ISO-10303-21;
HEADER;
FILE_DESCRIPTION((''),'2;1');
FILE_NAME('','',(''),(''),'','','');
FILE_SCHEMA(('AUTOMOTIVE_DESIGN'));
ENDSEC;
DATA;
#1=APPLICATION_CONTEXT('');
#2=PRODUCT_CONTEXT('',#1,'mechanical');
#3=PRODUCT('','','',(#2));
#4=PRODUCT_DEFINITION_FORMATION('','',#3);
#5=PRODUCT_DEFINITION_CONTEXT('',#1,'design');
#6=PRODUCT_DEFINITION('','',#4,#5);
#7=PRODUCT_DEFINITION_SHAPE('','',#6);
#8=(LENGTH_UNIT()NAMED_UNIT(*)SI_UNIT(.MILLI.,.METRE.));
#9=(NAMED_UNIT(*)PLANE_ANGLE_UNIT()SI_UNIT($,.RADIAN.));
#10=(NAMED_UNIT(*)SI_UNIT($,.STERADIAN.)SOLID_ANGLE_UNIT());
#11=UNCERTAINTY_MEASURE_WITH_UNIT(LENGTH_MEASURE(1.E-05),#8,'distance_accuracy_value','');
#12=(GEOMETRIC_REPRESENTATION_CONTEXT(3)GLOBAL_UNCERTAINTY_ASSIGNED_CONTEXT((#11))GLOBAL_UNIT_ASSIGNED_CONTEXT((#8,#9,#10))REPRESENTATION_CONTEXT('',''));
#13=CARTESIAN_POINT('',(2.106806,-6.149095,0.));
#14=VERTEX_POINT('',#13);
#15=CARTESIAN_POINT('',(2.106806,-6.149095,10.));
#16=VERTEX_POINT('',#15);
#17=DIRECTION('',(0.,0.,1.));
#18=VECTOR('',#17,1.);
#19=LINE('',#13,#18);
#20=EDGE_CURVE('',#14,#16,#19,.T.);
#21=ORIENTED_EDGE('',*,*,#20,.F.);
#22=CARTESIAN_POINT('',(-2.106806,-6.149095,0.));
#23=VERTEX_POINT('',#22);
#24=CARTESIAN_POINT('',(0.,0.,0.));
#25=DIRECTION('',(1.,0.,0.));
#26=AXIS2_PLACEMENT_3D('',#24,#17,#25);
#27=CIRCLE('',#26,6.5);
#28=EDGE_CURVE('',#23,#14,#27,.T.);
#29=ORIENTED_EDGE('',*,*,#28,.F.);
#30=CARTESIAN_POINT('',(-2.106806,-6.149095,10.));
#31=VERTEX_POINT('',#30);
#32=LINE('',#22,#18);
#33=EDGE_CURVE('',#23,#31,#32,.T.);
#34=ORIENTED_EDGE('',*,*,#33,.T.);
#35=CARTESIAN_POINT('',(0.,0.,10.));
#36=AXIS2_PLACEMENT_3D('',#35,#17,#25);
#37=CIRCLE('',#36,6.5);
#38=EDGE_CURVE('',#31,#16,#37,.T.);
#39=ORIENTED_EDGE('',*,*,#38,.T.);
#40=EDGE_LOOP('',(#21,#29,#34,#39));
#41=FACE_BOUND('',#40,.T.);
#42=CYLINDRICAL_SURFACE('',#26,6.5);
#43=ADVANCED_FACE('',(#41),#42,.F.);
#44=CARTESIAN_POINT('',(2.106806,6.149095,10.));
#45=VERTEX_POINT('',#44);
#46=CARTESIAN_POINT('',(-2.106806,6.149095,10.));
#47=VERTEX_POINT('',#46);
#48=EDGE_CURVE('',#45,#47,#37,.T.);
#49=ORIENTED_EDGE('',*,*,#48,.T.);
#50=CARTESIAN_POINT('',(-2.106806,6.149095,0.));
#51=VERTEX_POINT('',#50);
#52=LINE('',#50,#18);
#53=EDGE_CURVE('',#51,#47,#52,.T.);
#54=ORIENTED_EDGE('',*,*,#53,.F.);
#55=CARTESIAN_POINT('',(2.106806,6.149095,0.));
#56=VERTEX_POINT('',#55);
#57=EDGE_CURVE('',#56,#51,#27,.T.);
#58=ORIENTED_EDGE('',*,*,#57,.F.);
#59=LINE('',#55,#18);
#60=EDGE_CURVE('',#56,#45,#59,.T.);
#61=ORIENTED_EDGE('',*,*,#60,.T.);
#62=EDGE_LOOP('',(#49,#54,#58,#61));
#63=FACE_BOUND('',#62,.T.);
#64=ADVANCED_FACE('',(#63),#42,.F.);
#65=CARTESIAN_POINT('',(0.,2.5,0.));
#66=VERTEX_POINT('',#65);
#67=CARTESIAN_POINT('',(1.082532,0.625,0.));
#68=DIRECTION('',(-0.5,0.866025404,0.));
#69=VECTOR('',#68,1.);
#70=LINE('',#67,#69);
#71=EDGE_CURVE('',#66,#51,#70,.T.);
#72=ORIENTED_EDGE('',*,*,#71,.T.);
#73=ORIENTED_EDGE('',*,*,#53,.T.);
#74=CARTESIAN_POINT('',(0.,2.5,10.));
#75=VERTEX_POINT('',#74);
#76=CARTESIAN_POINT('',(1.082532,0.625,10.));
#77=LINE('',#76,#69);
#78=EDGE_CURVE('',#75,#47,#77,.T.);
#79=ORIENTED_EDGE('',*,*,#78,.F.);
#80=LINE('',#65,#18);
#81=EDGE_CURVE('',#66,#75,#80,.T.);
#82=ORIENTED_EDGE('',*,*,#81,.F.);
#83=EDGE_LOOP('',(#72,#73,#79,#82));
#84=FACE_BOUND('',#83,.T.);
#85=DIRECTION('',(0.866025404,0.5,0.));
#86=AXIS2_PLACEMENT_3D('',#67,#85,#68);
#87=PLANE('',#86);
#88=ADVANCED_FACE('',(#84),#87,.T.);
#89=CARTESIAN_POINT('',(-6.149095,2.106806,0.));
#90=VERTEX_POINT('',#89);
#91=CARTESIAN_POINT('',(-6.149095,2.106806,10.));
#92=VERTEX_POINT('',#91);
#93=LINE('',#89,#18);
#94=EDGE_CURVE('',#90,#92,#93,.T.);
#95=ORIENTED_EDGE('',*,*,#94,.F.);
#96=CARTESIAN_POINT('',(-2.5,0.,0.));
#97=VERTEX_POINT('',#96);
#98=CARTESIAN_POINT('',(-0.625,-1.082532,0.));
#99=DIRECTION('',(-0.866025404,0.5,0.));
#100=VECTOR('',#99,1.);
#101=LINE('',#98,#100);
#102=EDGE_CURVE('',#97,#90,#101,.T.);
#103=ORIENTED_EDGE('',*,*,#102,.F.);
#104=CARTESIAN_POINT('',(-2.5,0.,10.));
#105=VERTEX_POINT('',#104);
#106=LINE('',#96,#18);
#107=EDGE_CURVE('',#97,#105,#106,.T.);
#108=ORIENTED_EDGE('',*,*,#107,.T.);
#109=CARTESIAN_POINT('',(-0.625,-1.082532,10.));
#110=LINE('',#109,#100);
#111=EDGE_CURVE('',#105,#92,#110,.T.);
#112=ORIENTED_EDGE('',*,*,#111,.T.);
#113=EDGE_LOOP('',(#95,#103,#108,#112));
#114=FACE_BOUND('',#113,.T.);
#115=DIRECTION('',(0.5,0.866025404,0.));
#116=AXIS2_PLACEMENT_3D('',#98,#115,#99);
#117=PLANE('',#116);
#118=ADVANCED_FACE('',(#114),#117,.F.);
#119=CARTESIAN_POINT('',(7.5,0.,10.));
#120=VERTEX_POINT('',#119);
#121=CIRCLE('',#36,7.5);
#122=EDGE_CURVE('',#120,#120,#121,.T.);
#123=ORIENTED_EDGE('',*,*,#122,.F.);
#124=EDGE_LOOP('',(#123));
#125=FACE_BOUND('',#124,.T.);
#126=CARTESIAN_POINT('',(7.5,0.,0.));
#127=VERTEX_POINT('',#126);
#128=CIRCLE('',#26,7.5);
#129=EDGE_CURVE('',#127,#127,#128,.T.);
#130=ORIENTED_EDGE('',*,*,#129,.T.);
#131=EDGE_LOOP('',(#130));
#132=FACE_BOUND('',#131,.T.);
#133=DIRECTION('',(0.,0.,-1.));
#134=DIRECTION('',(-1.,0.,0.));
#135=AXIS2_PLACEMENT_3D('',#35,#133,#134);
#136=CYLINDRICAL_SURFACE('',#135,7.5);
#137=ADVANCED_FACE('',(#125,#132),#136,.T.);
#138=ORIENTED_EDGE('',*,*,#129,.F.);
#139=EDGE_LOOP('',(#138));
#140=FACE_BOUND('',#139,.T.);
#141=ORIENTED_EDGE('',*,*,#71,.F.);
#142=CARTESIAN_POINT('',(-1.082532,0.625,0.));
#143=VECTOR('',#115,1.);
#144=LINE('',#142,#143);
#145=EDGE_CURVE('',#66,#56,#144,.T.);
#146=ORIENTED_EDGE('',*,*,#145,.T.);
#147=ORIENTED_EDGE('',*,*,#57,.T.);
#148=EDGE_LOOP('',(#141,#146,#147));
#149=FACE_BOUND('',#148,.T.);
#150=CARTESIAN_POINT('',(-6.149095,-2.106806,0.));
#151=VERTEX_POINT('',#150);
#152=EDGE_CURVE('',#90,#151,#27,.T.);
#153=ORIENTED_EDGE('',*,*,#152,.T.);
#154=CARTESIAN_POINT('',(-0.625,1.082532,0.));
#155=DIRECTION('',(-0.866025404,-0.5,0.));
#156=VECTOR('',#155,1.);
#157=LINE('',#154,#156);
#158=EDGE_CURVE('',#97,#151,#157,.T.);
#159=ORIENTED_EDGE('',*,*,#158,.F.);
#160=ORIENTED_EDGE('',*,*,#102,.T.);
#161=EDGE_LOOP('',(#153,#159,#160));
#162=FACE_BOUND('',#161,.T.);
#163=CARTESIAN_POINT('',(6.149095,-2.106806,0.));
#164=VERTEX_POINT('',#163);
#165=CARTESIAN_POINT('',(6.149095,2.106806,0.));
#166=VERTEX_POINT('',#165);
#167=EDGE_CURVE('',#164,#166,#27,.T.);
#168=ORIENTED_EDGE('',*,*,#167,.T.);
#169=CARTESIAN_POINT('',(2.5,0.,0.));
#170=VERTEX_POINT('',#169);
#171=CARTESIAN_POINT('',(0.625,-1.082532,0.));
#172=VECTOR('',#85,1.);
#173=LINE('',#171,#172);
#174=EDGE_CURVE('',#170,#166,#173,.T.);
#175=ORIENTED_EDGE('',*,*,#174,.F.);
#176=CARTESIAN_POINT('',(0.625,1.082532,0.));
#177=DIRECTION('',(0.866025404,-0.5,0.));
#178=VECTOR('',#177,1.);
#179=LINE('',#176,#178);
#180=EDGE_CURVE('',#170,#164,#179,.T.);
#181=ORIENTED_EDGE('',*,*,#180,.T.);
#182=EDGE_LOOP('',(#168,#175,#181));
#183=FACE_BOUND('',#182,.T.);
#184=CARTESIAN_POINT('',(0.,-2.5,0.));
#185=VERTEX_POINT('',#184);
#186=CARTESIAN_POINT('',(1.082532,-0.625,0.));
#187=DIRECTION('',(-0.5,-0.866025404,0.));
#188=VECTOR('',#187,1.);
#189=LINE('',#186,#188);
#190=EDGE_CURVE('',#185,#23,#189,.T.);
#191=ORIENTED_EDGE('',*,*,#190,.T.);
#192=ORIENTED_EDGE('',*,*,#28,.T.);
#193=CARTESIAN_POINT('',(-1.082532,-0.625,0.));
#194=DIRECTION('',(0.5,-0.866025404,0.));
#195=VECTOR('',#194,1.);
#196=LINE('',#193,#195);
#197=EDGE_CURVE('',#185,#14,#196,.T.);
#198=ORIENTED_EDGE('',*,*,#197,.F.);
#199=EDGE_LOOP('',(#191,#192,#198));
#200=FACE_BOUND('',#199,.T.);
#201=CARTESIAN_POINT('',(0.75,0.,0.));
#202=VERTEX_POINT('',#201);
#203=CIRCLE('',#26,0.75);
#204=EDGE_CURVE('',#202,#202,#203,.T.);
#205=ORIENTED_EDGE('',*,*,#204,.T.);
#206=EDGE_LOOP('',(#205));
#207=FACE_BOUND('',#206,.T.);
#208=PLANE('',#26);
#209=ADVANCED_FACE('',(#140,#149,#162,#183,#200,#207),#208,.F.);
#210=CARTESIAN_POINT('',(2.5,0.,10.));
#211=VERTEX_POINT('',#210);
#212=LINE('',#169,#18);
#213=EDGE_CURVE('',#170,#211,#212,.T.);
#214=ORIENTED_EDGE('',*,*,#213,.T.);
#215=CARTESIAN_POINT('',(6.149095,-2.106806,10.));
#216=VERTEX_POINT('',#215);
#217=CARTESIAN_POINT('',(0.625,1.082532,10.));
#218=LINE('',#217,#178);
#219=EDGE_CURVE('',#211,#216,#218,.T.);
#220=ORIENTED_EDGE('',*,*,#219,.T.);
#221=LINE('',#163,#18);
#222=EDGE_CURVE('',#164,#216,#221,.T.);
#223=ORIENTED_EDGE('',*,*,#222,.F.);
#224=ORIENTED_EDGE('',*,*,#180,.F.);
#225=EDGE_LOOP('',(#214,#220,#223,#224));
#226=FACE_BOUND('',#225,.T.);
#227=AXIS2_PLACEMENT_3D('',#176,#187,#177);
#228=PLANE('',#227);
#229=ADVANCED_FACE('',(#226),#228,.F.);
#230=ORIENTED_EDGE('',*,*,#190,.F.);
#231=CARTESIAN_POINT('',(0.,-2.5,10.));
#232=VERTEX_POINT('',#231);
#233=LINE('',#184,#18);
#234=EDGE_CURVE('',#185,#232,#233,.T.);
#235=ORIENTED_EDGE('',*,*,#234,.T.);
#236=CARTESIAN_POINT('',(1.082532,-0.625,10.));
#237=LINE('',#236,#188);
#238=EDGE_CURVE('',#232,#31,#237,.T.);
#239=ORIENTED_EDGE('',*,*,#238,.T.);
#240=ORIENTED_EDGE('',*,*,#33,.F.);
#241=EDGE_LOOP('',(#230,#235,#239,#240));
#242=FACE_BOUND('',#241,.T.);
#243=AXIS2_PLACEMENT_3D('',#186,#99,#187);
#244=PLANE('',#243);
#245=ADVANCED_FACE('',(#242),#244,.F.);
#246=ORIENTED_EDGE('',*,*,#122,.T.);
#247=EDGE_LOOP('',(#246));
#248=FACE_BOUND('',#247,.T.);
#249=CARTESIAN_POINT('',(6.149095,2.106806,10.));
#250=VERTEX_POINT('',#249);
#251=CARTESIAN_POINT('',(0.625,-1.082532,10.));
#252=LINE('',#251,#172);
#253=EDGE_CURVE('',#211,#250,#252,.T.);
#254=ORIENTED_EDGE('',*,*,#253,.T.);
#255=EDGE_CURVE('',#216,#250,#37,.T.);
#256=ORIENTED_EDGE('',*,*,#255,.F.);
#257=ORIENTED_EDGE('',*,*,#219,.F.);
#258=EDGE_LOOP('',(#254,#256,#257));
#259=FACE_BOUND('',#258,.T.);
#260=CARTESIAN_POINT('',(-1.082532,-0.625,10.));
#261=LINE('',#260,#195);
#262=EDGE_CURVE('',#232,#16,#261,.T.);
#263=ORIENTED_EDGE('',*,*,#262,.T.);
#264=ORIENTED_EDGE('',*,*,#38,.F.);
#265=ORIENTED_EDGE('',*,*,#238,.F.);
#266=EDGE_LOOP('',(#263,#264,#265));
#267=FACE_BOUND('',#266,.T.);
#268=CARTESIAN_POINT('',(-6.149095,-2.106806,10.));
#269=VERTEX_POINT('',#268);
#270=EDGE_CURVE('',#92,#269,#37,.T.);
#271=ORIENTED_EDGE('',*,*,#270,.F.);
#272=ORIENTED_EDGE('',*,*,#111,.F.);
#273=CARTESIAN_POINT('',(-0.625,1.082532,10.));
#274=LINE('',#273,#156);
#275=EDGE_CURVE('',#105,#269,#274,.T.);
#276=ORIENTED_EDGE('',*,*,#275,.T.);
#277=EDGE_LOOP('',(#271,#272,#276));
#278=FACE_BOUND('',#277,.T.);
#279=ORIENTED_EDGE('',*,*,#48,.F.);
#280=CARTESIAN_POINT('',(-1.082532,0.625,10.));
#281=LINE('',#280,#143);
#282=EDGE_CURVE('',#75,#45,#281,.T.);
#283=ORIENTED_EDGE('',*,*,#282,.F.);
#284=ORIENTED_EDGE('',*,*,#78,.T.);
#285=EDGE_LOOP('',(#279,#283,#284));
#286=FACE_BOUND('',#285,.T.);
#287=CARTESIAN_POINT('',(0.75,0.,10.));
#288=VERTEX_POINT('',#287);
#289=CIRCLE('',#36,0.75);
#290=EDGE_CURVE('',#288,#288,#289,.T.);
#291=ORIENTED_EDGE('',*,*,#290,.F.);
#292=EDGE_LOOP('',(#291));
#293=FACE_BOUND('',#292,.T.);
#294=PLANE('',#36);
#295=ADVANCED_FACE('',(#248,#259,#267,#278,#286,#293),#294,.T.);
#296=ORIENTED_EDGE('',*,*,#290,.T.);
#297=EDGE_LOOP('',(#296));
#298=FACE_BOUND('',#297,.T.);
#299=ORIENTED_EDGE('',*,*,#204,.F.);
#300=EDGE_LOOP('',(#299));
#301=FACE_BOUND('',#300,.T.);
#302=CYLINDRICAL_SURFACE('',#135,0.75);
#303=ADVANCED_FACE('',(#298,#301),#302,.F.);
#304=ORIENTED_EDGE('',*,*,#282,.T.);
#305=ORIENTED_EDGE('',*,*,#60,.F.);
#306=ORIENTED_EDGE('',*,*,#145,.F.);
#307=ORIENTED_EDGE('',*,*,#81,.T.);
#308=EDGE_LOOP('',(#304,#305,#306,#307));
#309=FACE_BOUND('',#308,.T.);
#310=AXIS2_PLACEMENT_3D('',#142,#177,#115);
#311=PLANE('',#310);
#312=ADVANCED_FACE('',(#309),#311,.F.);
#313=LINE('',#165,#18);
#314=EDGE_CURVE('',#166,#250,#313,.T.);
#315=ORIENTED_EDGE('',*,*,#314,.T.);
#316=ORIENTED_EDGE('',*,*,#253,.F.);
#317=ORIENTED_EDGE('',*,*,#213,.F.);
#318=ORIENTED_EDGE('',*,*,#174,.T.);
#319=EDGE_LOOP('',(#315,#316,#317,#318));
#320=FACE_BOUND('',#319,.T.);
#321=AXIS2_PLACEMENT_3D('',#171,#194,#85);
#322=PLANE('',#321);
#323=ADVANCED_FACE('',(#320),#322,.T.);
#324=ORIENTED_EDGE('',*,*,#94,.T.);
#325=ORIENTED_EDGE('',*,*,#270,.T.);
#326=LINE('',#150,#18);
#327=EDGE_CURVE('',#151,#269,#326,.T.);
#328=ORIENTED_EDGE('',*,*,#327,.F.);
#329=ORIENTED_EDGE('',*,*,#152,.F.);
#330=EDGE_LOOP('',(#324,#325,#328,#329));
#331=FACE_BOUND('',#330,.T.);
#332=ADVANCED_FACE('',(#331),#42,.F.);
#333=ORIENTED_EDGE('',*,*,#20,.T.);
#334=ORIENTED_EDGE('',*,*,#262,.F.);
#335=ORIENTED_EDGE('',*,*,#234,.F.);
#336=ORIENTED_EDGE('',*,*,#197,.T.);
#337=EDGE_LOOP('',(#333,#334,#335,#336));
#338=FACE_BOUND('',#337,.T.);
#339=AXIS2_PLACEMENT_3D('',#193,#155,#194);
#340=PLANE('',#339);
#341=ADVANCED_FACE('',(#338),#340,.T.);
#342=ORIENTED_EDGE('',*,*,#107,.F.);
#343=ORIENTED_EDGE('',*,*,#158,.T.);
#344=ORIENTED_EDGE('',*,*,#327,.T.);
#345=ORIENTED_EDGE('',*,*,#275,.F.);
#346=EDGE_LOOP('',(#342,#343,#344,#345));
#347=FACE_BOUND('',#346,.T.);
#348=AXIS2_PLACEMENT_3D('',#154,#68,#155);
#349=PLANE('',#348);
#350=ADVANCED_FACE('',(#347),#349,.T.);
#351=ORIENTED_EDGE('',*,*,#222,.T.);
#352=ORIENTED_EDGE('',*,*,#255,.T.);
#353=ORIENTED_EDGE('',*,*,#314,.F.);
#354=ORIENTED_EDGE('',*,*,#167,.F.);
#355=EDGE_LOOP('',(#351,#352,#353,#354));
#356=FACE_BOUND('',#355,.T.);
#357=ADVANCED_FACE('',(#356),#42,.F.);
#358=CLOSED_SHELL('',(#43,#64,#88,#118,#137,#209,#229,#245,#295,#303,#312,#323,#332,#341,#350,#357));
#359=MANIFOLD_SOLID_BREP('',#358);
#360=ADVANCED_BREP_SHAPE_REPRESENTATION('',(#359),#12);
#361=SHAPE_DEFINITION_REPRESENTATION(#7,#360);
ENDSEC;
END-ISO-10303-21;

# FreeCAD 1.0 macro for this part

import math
import FreeCAD as App
import Part
import Sketcher
Q = App.Units.Quantity

doc = App.newDocument("Part")
body = doc.addObject("PartDesign::Body", "Body")

sketch1 = body.newObject("Sketcher::SketchObject", "Sketch")
sketch1.AttachmentSupport = (doc.getObject("XY_Plane"), [""])
sketch1.MapMode = "FlatFace"
sketch1.addGeometry(Part.Circle(App.Vector(0, 0, 0), App.Vector(0, 0, 1), 7.5), False)
sketch1.addGeometry(Part.Circle(App.Vector(0, 0, 0), App.Vector(0, 0, 1), 0.8), False)
sketch1.addConstraint(Sketcher.Constraint("Coincident", 0, 3, -1, 1))
sketch1.addConstraint(Sketcher.Constraint("Coincident", 1, 3, -1, 1))
sketch1.addConstraint(Sketcher.Constraint("Diameter", 0, 15.0))
sketch1.addConstraint(Sketcher.Constraint("Diameter", 1, 1.5))
pad1 = body.newObject("PartDesign::Pad", "Pad")
pad1.Profile = sketch1
pad1.Length = 10

sketch2 = body.newObject("Sketcher::SketchObject", "Sketch001")
sketch2.AttachmentSupport = (doc.getObject("XY_Plane"), [""])
sketch2.MapMode = "FlatFace"
sketch2.AttachmentOffset = App.Placement(App.Vector(0, 0, 10), App.Rotation())
sketch2.addGeometry(Part.LineSegment(App.Vector(2.1, -6.1, 0), App.Vector(0, -2.5, 0)), False)
sketch2.addGeometry(Part.LineSegment(App.Vector(0, -2.5, 0), App.Vector(-2.1, -6.1, 0)), False)
sketch2.addGeometry(Part.ArcOfCircle(Part.Circle(App.Vector(0, 0, 0), App.Vector(0, 0, 1), 6.5), math.radians(-109), math.radians(-71)), False)
sketch2.addGeometry(Part.LineSegment(App.Vector(-6.1, -2.1, 0), App.Vector(-2.5, 0, 0)), False)
sketch2.addGeometry(Part.LineSegment(App.Vector(-2.5, 0, 0), App.Vector(-6.1, 2.1, 0)), False)
sketch2.addGeometry(Part.ArcOfCircle(Part.Circle(App.Vector(0, 0, 0), App.Vector(0, 0, 1), 6.5), math.radians(161), math.radians(199)), False)
sketch2.addGeometry(Part.LineSegment(App.Vector(6.1, 2.1, 0), App.Vector(2.5, 0, 0)), False)
sketch2.addGeometry(Part.LineSegment(App.Vector(2.5, 0, 0), App.Vector(6.1, -2.1, 0)), False)
sketch2.addGeometry(Part.ArcOfCircle(Part.Circle(App.Vector(0, 0, 0), App.Vector(0, 0, 1), 6.5), math.radians(-19), math.radians(19)), False)
sketch2.addGeometry(Part.LineSegment(App.Vector(-2.1, 6.1, 0), App.Vector(0, 2.5, 0)), False)
sketch2.addGeometry(Part.LineSegment(App.Vector(0, 2.5, 0), App.Vector(2.1, 6.1, 0)), False)
sketch2.addGeometry(Part.ArcOfCircle(Part.Circle(App.Vector(0, 0, 0), App.Vector(0, 0, 1), 6.5), math.radians(71), math.radians(109)), False)
sketch2.addConstraint(Sketcher.Constraint("Coincident", 0, 2, 1, 1))
sketch2.addConstraint(Sketcher.Constraint("Coincident", 1, 2, 2, 1))
sketch2.addConstraint(Sketcher.Constraint("Coincident", 2, 2, 0, 1))
sketch2.addConstraint(Sketcher.Constraint("Coincident", 3, 2, 4, 1))
sketch2.addConstraint(Sketcher.Constraint("Coincident", 4, 2, 5, 1))
sketch2.addConstraint(Sketcher.Constraint("Coincident", 5, 2, 3, 1))
sketch2.addConstraint(Sketcher.Constraint("Coincident", 6, 2, 7, 1))
sketch2.addConstraint(Sketcher.Constraint("Coincident", 7, 2, 8, 1))
sketch2.addConstraint(Sketcher.Constraint("Coincident", 8, 2, 6, 1))
sketch2.addConstraint(Sketcher.Constraint("Coincident", 9, 2, 10, 1))
sketch2.addConstraint(Sketcher.Constraint("Coincident", 10, 2, 11, 1))
sketch2.addConstraint(Sketcher.Constraint("Coincident", 11, 2, 9, 1))
sketch2.addConstraint(Sketcher.Constraint("Coincident", 2, 3, -1, 1))
sketch2.addConstraint(Sketcher.Constraint("Coincident", 5, 3, -1, 1))
sketch2.addConstraint(Sketcher.Constraint("Coincident", 8, 3, -1, 1))
sketch2.addConstraint(Sketcher.Constraint("Coincident", 11, 3, -1, 1))
sketch2.addConstraint(Sketcher.Constraint("Equal", 2, 5))
sketch2.addConstraint(Sketcher.Constraint("Equal", 5, 8))
sketch2.addConstraint(Sketcher.Constraint("Equal", 8, 11))
sketch2.addConstraint(Sketcher.Constraint("Symmetric", 3, 2, 6, 2, -1, 1))
sketch2.addConstraint(Sketcher.Constraint("Symmetric", 0, 2, 9, 2, -1, 1))
sketch2.addConstraint(Sketcher.Constraint("PointOnObject", 0, 2, -2))
sketch2.addConstraint(Sketcher.Constraint("PointOnObject", 3, 2, -1))
sketch2.addConstraint(Sketcher.Constraint("Perpendicular", 0, 3))
sketch2.addConstraint(Sketcher.Constraint("Perpendicular", 1, 4))
sketch2.addConstraint(Sketcher.Constraint("Parallel", 3, 6))
sketch2.addConstraint(Sketcher.Constraint("Parallel", 4, 7))
sketch2.addConstraint(Sketcher.Constraint("Perpendicular", 6, 9))
sketch2.addConstraint(Sketcher.Constraint("Perpendicular", 7, 10))
sketch2.addConstraint(Sketcher.Constraint("Horizontal", 1, 2, 2, 2))
sketch2.addConstraint(Sketcher.Constraint("Equal", 1, 3))
sketch2.addConstraint(Sketcher.Constraint("Radius", 2, 6.5))
sketch2.addConstraint(Sketcher.Constraint("Angle", 0, Q("120 deg")))
sketch2.addConstraint(Sketcher.Constraint("DistanceY", 0, 2, -1, 1, 2.5))
pocket1 = body.newObject("PartDesign::Pocket", "Pocket")
pocket1.Profile = sketch2
pocket1.Type = "ThroughAll"

doc.recompute()
